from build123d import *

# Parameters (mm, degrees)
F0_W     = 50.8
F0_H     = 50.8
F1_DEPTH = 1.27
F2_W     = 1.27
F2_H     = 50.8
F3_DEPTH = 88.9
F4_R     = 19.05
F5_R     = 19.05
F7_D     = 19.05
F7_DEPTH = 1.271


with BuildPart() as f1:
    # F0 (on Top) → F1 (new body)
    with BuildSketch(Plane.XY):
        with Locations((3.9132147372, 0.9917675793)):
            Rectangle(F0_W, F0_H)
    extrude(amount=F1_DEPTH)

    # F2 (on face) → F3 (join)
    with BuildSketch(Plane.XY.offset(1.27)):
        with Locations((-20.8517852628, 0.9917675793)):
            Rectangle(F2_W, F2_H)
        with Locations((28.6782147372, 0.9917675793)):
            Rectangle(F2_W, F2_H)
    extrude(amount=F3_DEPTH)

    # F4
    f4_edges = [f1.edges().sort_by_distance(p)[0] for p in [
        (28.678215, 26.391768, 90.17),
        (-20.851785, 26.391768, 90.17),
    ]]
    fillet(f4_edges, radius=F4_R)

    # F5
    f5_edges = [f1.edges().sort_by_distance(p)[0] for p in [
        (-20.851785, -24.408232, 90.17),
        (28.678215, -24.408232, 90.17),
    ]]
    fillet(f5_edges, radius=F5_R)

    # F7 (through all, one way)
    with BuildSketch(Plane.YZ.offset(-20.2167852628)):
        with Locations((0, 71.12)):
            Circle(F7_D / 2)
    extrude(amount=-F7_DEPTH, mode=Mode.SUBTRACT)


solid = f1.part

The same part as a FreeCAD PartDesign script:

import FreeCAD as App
import Part
import Sketcher
from FreeCAD import Vector
Q = App.Units.Quantity


def edges_at(feature, points):
    """Names of the edges that pass closest to the given points."""
    edges = feature.Shape.Edges
    near = lambda p: min(range(len(edges)), key=lambda i: edges[i].distToShape(Part.Vertex(*p))[0])
    return sorted({f"Edge{near(p) + 1}" for p in points})


def add_polygon(sketch, points):
    """Adds a closed chain of lines whose ends are joined by coincident constraints."""
    first, n = sketch.GeometryCount, len(points)
    for a, b in zip(points, points[1:] + points[:1]):
        sketch.addGeometry(Part.LineSegment(App.Vector(*a, 0), App.Vector(*b, 0)), False)
    for i in range(n):
        sketch.addConstraint(Sketcher.Constraint("Coincident", first + i, 2, first + (i + 1) % n, 1))

doc = App.newDocument("Part")
body = doc.addObject("PartDesign::Body", "Body")

# Sketch on XY plane
sketch1 = doc.addObject("Sketcher::SketchObject", "Sketch")
body.addObject(sketch1)
sketch1.AttachmentSupport = (doc.XY_Plane, [""])
sketch1.MapMode = "FlatFace"
add_polygon(sketch1, [(-21.486785, 26.391768), (-21.486785, -24.408232), (29.313215, -24.408232), (29.313215, 26.391768)])  # lines 0-3
sketch1.addConstraint([
    Sketcher.Constraint("Vertical", 0),
    Sketcher.Constraint("Horizontal", 1),
    Sketcher.Constraint("Vertical", 2),
    Sketcher.Constraint("Horizontal", 3),
    Sketcher.Constraint("Equal", 3, 0),
    Sketcher.Constraint("DistanceX", 1, 1, 1, 2, Q("2 in")),
    Sketcher.Constraint("DistanceX", 0, 2, -1, 1, Q("21.486785 mm")),
    Sketcher.Constraint("DistanceY", 0, 2, -1, 1, Q("24.408232 mm")),
])
pad1 = doc.addObject("PartDesign::Pad", "Pad")
body.addObject(pad1)
pad1.Profile = sketch1
pad1.Length = Q("0.05 in")

# Sketch on XY plane
sketch2 = doc.addObject("Sketcher::SketchObject", "Sketch001")
body.addObject(sketch2)
sketch2.AttachmentSupport = (doc.XY_Plane, [""])
sketch2.MapMode = "FlatFace"
sketch2.AttachmentOffset = App.Placement(Vector(0, 0, 0.05 * 25.4), App.Rotation())
add_polygon(sketch2, [(-21.486785, 26.391768), (-21.486785, -24.408232), (-20.216785, -24.408232), (-20.216785, 26.391768)])  # lines 0-3
add_polygon(sketch2, [(28.043215, 26.391768), (28.043215, -24.408232), (29.313215, -24.408232), (29.313215, 26.391768)])  # lines 4-7
sketch2.addConstraint([
    Sketcher.Constraint("Vertical", 0),
    Sketcher.Constraint("Horizontal", 1),
    Sketcher.Constraint("Vertical", 2),
    Sketcher.Constraint("Horizontal", 3),
    Sketcher.Constraint("Vertical", 4),
    Sketcher.Constraint("Horizontal", 5),
    Sketcher.Constraint("Vertical", 6),
    Sketcher.Constraint("Horizontal", 7),
    Sketcher.Constraint("Horizontal", 1, 2, 4, 2),
    Sketcher.Constraint("Horizontal", 3, 2, 6, 2),
    Sketcher.Constraint("Equal", 3, 5),
    Sketcher.Constraint("DistanceY", 0, 2, 0, 1, Q("2 in")),
    Sketcher.Constraint("DistanceX", 0, 2, 5, 2, Q("2 in")),
    Sketcher.Constraint("DistanceX", 1, 1, 1, 2, Q("0.05 in")),
    Sketcher.Constraint("DistanceX", 0, 2, -1, 1, Q("21.486785 mm")),
    Sketcher.Constraint("DistanceY", 0, 2, -1, 1, Q("24.408232 mm")),
])
pad2 = doc.addObject("PartDesign::Pad", "Pad001")
body.addObject(pad2)
pad2.Profile = sketch2
pad2.Length = Q("3.5 in")
doc.recompute()

fillet = doc.addObject("PartDesign::Fillet", "Fillet")
body.addObject(fillet)
fillet.Base = (pad2, edges_at(pad2, [(28.678, 26.392, 90.17), (-20.852, 26.392, 90.17)]))
fillet.Radius = Q("0.75 in")
doc.recompute()

fillet2 = doc.addObject("PartDesign::Fillet", "Fillet001")
body.addObject(fillet2)
fillet2.Base = (fillet, edges_at(fillet, [(-20.852, -24.408, 90.17), (28.678, -24.408, 90.17)]))
fillet2.Radius = Q("0.75 in")

# Sketch on YZ plane
sketch3 = doc.addObject("Sketcher::SketchObject", "Sketch002")
body.addObject(sketch3)
sketch3.AttachmentSupport = (doc.YZ_Plane, [""])
sketch3.MapMode = "FlatFace"
sketch3.AttachmentOffset = App.Placement(Vector(0, 0, -20.216785), App.Rotation())
sketch3.addGeometry(Part.Circle(Vector(0, 71.12, 0), Vector(0, 0, 1), 9.525), False)
sketch3.addConstraint([
    Sketcher.Constraint("PointOnObject", 0, 3, -2),
    Sketcher.Constraint("Diameter", 0, Q("0.75 in")),
    Sketcher.Constraint("DistanceY", -1, 1, 0, 3, Q("2.8 in")),
])
pocket1 = doc.addObject("PartDesign::Pocket", "Pocket")
body.addObject(pocket1)
pocket1.Profile = sketch3
pocket1.Type = "ThroughAll"

doc.recompute()
